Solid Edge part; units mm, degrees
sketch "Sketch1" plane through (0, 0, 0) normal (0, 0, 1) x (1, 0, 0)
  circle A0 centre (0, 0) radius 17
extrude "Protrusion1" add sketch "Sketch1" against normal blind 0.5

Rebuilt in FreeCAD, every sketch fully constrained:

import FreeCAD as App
import Part
import Sketcher

V = App.Vector
Q = App.Units.Quantity

doc = App.newDocument("Part")
body = doc.addObject("PartDesign::Body", "Body")

sketch1 = body.newObject("Sketcher::SketchObject", "Sketch")
sketch1.AttachmentSupport = (doc.getObject("XY_Plane"), [""])
sketch1.MapMode = "FlatFace"
sketch1.addGeometry(Part.Circle(V(0, 0, 0), V(0, 0, 1), 17), False)
sketch1.addConstraint([
    Sketcher.Constraint("Coincident", 0, 3, -1, 1),
    Sketcher.Constraint("Diameter", 0, Q("34 mm")),
])
pad1 = body.newObject("PartDesign::Pad", "Pad")
pad1.Profile = sketch1
pad1.Length = 0.5
pad1.Reversed = True

doc.recompute()
